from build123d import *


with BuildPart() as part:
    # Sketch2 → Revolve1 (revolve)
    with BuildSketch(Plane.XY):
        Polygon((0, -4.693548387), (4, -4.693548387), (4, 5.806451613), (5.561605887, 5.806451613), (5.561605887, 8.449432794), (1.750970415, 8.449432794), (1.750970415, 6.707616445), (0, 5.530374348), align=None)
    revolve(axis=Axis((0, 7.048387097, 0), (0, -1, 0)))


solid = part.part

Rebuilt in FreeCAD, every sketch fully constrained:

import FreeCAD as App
import Part
import Sketcher
Q = App.Units.Quantity

doc = App.newDocument("Part")
params = doc.addObject("Spreadsheet::Sheet", "Params")
for row, (alias, value) in enumerate([
    ("sketch1_width", "4 mm"),
    ("sketch1_height", "10.5 mm"),
    ("revolution_angle", "360 deg"),
], start=1):
    params.set(f"A{row}", alias)
    params.set(f"B{row}", "=" + value)
    params.setAlias(f"B{row}", alias)

body = doc.addObject("PartDesign::Body", "Body")

sketch1 = body.newObject("Sketcher::SketchObject", "Sketch")
sketch1.AttachmentSupport = (doc.getObject("XY_Plane"), [""])
sketch1.MapMode = "FlatFace"
sketch1.addGeometry([
    Part.LineSegment(App.Vector(0, -4.7, 0), App.Vector(4, -4.7, 0)),
    Part.LineSegment(App.Vector(4, -4.7, 0), App.Vector(4, 5.8, 0)),
    Part.LineSegment(App.Vector(4, 5.8, 0), App.Vector(5.6, 5.8, 0)),
    Part.LineSegment(App.Vector(5.6, 5.8, 0), App.Vector(5.6, 8.4, 0)),
    Part.LineSegment(App.Vector(5.6, 8.4, 0), App.Vector(1.8, 8.4, 0)),
    Part.LineSegment(App.Vector(1.8, 8.4, 0), App.Vector(1.8, 6.7, 0)),
    Part.LineSegment(App.Vector(1.8, 6.7, 0), App.Vector(0, 5.5, 0)),
    Part.LineSegment(App.Vector(0, 5.5, 0), App.Vector(0, -4.7, 0)),
], False)
sketch1.addConstraint([
    Sketcher.Constraint("Coincident", 0, 2, 1, 1),
    Sketcher.Constraint("Coincident", 1, 2, 2, 1),
    Sketcher.Constraint("Coincident", 2, 2, 3, 1),
    Sketcher.Constraint("Coincident", 3, 2, 4, 1),
    Sketcher.Constraint("Coincident", 4, 2, 5, 1),
    Sketcher.Constraint("Coincident", 5, 2, 6, 1),
    Sketcher.Constraint("Coincident", 6, 2, 7, 1),
    Sketcher.Constraint("Coincident", 7, 2, 0, 1),
    Sketcher.Constraint("Horizontal", 0),
    Sketcher.Constraint("Vertical", 1),
    Sketcher.Constraint("Horizontal", 2),
    Sketcher.Constraint("Vertical", 3),
    Sketcher.Constraint("Horizontal", 4),
    Sketcher.Constraint("Vertical", 5),
    Sketcher.Constraint("Vertical", 7),
    Sketcher.Constraint("PointOnObject", 6, 2, -2),
    Sketcher.Constraint("DistanceX", 0, 1, 0, 2, Q("4 mm")),
    Sketcher.Constraint("DistanceY", 1, 1, 1, 2, Q("10.5 mm")),
    Sketcher.Constraint("DistanceY", 3, 1, 3, 2, Q("2.642981 mm")),
    Sketcher.Constraint("Distance", 6, Q("2.109928 mm")),
    Sketcher.Constraint("DistanceX", 2, 1, 2, 2, Q("1.561606 mm")),
    Sketcher.Constraint("DistanceX", 4, 2, 4, 1, Q("3.810635 mm")),
    Sketcher.Constraint("DistanceY", 5, 2, 5, 1, Q("1.741816 mm")),
    Sketcher.Constraint("DistanceY", 0, 2, -1, 1, Q("4.693548 mm")),
])
sketch1.setExpression("Constraints[16]", "Params.sketch1_width")
sketch1.setExpression("Constraints[17]", "Params.sketch1_height")
revolution = body.newObject("PartDesign::Revolution", "Revolution")
revolution.Profile = sketch1
revolution.ReferenceAxis = (sketch1, ["V_Axis"])
revolution.setExpression("Angle", "Params.revolution_angle")

doc.recompute()
